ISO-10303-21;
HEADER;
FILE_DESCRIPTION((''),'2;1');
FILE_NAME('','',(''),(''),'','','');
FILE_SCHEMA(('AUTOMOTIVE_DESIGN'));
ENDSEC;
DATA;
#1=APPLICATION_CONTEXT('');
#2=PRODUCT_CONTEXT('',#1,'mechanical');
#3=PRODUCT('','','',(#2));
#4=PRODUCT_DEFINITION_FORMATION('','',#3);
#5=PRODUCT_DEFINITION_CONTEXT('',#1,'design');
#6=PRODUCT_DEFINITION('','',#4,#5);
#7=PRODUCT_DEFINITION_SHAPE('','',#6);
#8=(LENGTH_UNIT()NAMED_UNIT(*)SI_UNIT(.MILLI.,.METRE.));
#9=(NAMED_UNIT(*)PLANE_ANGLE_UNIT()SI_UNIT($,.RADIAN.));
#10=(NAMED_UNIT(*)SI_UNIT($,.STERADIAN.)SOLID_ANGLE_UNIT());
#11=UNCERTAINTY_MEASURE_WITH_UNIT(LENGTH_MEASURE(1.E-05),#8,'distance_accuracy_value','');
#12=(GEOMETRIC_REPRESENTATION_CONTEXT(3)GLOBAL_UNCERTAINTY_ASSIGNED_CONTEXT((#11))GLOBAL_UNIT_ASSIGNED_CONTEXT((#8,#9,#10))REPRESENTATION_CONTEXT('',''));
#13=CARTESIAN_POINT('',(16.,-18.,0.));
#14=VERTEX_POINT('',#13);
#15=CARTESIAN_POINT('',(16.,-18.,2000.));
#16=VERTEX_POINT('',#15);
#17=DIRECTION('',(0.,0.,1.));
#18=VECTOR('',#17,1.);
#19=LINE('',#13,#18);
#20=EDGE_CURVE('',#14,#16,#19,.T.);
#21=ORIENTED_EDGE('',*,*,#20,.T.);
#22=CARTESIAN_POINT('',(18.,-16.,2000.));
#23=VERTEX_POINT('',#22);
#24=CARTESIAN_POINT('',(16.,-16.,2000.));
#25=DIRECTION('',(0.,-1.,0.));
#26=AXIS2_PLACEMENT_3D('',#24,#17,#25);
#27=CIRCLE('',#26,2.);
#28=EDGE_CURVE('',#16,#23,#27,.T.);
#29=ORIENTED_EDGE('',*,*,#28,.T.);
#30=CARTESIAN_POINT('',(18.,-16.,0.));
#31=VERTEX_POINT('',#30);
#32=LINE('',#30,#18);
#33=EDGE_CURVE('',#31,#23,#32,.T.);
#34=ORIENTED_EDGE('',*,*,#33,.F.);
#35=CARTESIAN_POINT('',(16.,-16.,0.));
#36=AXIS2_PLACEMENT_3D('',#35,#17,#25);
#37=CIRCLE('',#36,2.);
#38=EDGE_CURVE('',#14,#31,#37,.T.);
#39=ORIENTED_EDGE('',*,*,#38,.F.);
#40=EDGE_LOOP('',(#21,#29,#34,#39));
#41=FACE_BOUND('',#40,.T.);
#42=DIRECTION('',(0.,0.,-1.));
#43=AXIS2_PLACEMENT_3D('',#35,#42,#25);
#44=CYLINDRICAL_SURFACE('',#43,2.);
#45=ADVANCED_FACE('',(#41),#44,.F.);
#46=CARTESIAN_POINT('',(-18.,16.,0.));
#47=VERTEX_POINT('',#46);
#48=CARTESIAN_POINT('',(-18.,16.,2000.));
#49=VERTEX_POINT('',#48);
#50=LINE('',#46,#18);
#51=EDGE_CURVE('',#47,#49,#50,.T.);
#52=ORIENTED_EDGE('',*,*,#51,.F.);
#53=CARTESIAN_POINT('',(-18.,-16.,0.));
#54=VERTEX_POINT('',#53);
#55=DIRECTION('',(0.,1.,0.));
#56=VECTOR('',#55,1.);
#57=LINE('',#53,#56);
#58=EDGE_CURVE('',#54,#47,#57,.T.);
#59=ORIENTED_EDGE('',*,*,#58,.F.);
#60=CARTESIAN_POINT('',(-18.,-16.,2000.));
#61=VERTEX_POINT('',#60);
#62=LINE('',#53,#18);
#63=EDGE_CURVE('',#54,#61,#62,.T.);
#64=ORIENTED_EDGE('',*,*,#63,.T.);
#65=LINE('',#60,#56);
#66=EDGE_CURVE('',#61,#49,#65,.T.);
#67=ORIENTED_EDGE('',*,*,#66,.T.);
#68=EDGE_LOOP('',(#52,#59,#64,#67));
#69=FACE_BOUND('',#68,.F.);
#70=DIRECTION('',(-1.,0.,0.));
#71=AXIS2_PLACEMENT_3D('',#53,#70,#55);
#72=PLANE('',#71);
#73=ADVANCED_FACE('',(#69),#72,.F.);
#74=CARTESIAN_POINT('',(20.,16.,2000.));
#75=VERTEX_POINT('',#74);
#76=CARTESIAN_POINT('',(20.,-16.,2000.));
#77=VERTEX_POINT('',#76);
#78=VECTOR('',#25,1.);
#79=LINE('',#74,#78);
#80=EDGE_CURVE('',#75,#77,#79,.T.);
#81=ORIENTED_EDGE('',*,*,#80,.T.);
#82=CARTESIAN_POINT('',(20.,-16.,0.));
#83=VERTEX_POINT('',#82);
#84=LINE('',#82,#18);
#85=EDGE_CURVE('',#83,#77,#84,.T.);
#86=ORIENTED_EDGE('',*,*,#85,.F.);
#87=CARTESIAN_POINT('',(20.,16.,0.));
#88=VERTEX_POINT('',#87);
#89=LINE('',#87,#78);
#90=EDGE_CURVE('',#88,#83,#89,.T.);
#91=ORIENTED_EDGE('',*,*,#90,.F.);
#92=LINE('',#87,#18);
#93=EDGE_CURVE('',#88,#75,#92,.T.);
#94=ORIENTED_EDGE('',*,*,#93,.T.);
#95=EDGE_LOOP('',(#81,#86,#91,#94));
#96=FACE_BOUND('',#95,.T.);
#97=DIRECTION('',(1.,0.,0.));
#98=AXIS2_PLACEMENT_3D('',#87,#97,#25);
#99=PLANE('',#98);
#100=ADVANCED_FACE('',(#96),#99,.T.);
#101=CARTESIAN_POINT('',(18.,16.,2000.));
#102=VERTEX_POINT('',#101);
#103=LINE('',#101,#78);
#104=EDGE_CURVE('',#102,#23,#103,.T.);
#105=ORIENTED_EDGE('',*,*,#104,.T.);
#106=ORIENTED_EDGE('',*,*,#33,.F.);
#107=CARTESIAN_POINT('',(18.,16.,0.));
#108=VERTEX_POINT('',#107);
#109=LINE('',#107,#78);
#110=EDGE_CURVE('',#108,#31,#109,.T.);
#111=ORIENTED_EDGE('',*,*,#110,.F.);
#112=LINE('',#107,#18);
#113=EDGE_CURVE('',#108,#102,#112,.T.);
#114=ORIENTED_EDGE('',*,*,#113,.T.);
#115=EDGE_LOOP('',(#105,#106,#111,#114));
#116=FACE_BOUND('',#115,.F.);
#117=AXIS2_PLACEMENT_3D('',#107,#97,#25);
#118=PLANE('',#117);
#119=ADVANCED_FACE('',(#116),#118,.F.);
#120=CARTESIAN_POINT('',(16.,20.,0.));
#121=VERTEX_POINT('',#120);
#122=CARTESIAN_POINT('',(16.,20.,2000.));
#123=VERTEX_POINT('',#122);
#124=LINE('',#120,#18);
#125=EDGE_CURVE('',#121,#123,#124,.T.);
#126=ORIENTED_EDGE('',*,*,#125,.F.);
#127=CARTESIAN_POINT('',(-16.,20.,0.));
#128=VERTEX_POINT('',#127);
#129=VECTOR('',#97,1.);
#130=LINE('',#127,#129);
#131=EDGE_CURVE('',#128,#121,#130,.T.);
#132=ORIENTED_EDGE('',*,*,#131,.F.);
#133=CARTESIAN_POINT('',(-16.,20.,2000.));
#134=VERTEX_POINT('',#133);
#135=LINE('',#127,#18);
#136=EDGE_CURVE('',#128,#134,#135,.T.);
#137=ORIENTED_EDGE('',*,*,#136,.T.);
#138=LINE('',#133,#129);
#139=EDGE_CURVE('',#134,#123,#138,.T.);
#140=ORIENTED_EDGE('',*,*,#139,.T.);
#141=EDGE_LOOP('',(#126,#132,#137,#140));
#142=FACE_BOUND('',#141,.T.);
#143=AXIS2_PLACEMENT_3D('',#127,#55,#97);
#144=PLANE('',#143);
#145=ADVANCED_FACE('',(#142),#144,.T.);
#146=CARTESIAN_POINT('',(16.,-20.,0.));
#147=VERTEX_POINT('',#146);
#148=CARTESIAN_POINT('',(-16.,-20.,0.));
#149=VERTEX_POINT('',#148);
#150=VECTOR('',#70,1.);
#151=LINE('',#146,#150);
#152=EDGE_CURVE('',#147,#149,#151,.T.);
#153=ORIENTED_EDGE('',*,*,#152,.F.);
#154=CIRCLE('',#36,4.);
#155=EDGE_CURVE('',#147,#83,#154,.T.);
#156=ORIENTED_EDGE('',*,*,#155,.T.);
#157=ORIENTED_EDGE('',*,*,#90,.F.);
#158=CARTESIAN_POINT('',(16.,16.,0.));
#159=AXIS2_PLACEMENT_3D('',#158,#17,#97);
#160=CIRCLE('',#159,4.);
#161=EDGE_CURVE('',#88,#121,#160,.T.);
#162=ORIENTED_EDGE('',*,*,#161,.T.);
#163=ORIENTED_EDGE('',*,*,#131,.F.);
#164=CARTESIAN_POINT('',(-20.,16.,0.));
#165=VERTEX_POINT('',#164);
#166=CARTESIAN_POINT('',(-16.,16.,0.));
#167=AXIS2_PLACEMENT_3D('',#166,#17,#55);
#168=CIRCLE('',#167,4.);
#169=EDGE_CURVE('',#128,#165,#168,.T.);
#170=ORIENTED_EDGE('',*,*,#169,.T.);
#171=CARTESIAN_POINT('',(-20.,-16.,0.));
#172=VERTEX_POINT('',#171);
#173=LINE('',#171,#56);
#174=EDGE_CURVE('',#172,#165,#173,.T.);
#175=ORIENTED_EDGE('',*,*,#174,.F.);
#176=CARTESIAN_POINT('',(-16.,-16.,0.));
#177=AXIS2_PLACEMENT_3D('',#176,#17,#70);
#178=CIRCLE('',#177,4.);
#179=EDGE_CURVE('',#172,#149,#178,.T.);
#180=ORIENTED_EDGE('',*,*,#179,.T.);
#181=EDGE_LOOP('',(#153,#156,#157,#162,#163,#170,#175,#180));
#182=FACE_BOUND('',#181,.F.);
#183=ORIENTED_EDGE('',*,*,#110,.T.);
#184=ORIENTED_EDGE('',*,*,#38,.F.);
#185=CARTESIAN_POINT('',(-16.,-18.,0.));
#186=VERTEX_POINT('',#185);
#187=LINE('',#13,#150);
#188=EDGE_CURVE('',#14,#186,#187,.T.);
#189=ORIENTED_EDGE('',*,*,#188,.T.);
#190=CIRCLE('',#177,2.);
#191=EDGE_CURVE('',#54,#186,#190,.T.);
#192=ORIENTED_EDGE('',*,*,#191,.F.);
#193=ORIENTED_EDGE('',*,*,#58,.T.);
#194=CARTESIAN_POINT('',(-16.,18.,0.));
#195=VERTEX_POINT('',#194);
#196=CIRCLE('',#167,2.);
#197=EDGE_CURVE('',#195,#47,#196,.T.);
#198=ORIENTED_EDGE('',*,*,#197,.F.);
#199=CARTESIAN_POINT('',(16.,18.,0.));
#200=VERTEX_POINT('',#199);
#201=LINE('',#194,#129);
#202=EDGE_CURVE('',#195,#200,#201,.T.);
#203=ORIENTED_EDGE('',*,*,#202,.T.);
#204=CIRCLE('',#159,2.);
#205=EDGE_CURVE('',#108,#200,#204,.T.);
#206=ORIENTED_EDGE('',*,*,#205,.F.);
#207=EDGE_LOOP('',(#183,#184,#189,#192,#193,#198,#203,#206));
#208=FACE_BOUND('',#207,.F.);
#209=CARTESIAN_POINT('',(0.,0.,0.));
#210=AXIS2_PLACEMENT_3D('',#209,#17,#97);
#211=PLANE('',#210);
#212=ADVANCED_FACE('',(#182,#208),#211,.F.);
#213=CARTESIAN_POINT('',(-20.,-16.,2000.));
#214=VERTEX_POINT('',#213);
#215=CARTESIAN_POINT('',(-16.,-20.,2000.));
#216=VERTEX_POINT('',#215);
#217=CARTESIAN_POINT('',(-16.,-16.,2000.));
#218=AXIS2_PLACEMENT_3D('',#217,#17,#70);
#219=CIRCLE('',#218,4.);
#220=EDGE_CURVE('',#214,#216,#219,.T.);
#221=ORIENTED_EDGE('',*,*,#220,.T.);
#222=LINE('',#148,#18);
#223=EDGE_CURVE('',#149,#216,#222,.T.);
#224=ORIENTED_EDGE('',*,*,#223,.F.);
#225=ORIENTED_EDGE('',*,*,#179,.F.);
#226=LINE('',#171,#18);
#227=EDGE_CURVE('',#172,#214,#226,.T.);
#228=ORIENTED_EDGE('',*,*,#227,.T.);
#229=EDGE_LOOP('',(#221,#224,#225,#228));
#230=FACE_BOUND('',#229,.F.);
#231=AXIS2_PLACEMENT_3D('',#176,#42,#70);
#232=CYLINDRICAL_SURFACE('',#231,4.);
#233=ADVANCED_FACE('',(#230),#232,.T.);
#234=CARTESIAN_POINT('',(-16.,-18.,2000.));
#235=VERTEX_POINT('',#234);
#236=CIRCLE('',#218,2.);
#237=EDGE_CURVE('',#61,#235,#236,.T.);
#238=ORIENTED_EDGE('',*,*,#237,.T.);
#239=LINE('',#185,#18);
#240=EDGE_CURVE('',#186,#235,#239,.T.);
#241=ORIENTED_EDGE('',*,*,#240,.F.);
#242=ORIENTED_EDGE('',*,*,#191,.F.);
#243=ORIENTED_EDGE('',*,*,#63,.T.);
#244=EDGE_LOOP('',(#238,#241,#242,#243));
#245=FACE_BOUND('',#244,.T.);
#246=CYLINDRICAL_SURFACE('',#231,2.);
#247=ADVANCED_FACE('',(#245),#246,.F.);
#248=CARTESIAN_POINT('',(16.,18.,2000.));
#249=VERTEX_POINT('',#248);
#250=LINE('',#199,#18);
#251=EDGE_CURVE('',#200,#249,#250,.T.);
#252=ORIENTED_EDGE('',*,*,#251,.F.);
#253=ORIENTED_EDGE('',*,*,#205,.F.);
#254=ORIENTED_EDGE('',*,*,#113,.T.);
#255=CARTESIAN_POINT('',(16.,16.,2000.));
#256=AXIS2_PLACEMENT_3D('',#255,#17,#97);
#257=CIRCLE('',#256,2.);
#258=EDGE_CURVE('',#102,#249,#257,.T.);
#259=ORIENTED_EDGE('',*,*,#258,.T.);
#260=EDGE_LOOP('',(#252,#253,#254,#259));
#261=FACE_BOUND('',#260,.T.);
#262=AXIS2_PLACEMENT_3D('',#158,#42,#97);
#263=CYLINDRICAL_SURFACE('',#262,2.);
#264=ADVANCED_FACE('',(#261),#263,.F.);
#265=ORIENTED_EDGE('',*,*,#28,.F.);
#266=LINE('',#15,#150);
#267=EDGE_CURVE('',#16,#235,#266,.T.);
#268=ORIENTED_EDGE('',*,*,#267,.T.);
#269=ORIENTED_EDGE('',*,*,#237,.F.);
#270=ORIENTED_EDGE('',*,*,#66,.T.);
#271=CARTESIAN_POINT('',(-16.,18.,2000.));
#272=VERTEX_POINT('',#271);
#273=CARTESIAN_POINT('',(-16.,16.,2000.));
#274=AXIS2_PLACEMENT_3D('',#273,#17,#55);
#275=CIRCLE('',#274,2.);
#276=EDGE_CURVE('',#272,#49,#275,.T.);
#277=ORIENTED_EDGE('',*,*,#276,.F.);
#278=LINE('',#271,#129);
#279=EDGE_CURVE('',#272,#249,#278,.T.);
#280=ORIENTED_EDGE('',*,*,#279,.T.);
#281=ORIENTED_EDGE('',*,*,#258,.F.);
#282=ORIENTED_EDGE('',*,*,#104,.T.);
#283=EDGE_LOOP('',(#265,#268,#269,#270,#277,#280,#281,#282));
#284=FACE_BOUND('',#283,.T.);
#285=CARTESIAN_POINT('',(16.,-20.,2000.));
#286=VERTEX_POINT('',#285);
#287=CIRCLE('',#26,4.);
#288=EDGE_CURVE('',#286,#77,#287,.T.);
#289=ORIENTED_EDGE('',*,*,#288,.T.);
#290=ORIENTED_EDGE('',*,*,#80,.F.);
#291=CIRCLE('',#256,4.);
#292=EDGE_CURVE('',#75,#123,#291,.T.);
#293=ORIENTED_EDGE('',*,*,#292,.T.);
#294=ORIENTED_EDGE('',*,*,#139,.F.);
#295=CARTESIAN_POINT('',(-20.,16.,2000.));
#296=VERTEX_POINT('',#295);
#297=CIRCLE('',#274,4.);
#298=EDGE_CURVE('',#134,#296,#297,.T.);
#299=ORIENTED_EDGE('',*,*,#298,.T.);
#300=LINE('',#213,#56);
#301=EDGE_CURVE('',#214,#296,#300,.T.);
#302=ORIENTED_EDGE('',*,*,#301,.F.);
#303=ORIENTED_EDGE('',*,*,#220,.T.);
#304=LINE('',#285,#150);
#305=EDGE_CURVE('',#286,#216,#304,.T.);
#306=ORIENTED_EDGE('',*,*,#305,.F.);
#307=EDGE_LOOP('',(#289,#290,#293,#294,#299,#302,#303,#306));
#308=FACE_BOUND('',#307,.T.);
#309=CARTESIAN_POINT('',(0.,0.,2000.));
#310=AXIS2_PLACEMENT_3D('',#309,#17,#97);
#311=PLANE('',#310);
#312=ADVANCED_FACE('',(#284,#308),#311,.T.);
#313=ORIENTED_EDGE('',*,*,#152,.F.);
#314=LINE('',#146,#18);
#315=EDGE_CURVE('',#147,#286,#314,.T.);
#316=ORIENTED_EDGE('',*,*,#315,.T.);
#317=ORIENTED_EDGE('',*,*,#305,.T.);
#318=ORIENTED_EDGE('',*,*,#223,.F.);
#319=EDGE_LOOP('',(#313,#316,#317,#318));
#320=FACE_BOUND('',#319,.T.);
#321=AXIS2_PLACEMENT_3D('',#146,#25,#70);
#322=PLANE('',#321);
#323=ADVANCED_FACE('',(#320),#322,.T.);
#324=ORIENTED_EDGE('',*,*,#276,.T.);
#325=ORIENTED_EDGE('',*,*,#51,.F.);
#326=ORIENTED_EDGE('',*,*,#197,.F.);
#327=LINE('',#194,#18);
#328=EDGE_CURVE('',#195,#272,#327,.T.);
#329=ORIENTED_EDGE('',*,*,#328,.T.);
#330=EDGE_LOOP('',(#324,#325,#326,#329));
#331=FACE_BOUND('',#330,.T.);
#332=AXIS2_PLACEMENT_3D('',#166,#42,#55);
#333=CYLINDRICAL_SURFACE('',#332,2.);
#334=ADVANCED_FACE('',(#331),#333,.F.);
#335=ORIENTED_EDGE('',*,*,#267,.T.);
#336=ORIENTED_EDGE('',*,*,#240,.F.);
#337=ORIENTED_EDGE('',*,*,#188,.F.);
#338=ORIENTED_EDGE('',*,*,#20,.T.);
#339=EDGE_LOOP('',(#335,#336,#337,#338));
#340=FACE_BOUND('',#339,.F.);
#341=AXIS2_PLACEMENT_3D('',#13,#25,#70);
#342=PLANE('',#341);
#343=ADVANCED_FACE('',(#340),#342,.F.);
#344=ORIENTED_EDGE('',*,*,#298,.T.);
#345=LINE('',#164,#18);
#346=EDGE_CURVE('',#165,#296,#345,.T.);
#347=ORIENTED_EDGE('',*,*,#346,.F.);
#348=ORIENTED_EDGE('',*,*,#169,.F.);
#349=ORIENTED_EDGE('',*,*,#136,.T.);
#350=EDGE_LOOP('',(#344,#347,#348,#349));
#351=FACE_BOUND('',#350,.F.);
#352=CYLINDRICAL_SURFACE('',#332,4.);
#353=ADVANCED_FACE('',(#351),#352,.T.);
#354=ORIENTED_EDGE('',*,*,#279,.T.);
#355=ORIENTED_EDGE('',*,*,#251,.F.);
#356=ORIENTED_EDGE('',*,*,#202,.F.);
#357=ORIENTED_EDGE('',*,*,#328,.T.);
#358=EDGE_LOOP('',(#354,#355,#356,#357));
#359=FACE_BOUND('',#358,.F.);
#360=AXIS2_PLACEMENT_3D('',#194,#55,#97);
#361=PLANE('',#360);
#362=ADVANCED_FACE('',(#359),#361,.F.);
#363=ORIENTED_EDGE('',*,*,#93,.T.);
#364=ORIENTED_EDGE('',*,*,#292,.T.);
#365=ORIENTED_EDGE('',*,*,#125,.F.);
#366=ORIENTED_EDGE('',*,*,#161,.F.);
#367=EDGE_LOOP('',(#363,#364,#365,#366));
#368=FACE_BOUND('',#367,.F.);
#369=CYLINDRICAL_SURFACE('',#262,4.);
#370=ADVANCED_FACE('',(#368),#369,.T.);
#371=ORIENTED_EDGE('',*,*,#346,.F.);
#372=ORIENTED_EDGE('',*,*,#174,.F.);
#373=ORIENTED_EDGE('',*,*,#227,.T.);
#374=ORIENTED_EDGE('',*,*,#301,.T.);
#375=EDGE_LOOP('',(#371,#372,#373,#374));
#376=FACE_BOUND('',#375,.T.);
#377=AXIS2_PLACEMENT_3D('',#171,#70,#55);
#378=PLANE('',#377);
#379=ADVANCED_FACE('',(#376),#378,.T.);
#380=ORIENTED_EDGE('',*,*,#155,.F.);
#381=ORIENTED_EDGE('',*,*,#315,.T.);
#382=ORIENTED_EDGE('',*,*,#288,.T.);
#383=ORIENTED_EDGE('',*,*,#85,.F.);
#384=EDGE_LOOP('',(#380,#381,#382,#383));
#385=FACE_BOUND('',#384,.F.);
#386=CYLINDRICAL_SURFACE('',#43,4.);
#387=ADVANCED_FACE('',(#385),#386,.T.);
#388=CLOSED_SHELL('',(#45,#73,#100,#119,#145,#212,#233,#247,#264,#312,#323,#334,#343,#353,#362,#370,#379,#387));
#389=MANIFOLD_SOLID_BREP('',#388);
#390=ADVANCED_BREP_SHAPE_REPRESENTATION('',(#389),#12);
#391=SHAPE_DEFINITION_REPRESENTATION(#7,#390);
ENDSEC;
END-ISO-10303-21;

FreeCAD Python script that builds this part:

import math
import FreeCAD as App
import Part
import Sketcher
from FreeCAD import Vector
Q = App.Units.Quantity

doc = App.newDocument("Part")
body = doc.addObject("PartDesign::Body", "Body")

sketch1 = body.newObject("Sketcher::SketchObject", "Sketch")
sketch1.AttachmentSupport = (doc.getObject("XY_Plane"), [""])
sketch1.MapMode = "FlatFace"
sketch1.addGeometry([
    Part.LineSegment(Vector(-20, 16, 0), Vector(-20, -16, 0)),
    Part.ArcOfCircle(Part.Circle(Vector(-16, -16, 0), Vector(0, 0, 1), 4), math.radians(180), math.radians(270)),
    Part.LineSegment(Vector(-16, -20, 0), Vector(16, -20, 0)),
    Part.ArcOfCircle(Part.Circle(Vector(16, -16, 0), Vector(0, 0, 1), 4), math.radians(-90), math.radians(0)),
    Part.LineSegment(Vector(20, -16, 0), Vector(20, 16, 0)),
    Part.ArcOfCircle(Part.Circle(Vector(16, 16, 0), Vector(0, 0, 1), 4), math.radians(0), math.radians(90)),
    Part.LineSegment(Vector(16, 20, 0), Vector(-16, 20, 0)),
    Part.ArcOfCircle(Part.Circle(Vector(-16, 16, 0), Vector(0, 0, 1), 4), math.radians(90), math.radians(180)),
    Part.ArcOfCircle(Part.Circle(Vector(-16, 16, 0), Vector(0, 0, 1), 2), math.radians(90), math.radians(180)),
    Part.LineSegment(Vector(-16, 18, 0), Vector(16, 18, 0)),
    Part.ArcOfCircle(Part.Circle(Vector(16, 16, 0), Vector(0, 0, 1), 2), math.radians(0), math.radians(90)),
    Part.LineSegment(Vector(18, 16, 0), Vector(18, -16, 0)),
    Part.ArcOfCircle(Part.Circle(Vector(16, -16, 0), Vector(0, 0, 1), 2), math.radians(-90), math.radians(0)),
    Part.LineSegment(Vector(16, -18, 0), Vector(-16, -18, 0)),
    Part.ArcOfCircle(Part.Circle(Vector(-16, -16, 0), Vector(0, 0, 1), 2), math.radians(180), math.radians(270)),
    Part.LineSegment(Vector(-18, -16, 0), Vector(-18, 16, 0)),
], False)
sketch1.addConstraint([
    Sketcher.Constraint("Tangent", 0, 2, 1, 1),
    Sketcher.Constraint("Tangent", 1, 2, 2, 1),
    Sketcher.Constraint("Tangent", 2, 2, 3, 1),
    Sketcher.Constraint("Tangent", 3, 2, 4, 1),
    Sketcher.Constraint("Tangent", 4, 2, 5, 1),
    Sketcher.Constraint("Tangent", 5, 2, 6, 1),
    Sketcher.Constraint("Tangent", 6, 2, 7, 1),
    Sketcher.Constraint("Tangent", 7, 2, 0, 1),
    Sketcher.Constraint("Tangent", 8, 1, 9, 1),
    Sketcher.Constraint("Tangent", 9, 2, 10, 2),
    Sketcher.Constraint("Tangent", 10, 1, 11, 1),
    Sketcher.Constraint("Tangent", 11, 2, 12, 2),
    Sketcher.Constraint("Tangent", 12, 1, 13, 1),
    Sketcher.Constraint("Tangent", 13, 2, 14, 2),
    Sketcher.Constraint("Tangent", 14, 1, 15, 1),
    Sketcher.Constraint("Tangent", 15, 2, 8, 2),
    Sketcher.Constraint("Vertical", 0),
    Sketcher.Constraint("Horizontal", 2),
    Sketcher.Constraint("Vertical", 4),
    Sketcher.Constraint("Horizontal", 6),
    Sketcher.Constraint("Horizontal", 9),
    Sketcher.Constraint("Vertical", 11),
    Sketcher.Constraint("Horizontal", 13),
    Sketcher.Constraint("Vertical", 15),
    Sketcher.Constraint("Coincident", 8, 3, 7, 3),
    Sketcher.Constraint("Coincident", 10, 3, 5, 3),
    Sketcher.Constraint("Coincident", 12, 3, 3, 3),
    Sketcher.Constraint("Equal", 1, 3),
    Sketcher.Constraint("Equal", 3, 5),
    Sketcher.Constraint("Equal", 5, 7),
    Sketcher.Constraint("Equal", 12, 14),
    Sketcher.Constraint("Symmetric", 1, 3, 5, 3, -1, 1),
    Sketcher.Constraint("Equal", 13, 0),
    Sketcher.Constraint("Radius", 1, Q("4 mm")),
    Sketcher.Constraint("Radius", 8, Q("2 mm")),
    Sketcher.Constraint("DistanceX", 0, 2, -1, 1, Q("20 mm")),
])
pad1 = body.newObject("PartDesign::Pad", "Pad")
pad1.Profile = sketch1
pad1.Length = 2000

doc.recompute()
